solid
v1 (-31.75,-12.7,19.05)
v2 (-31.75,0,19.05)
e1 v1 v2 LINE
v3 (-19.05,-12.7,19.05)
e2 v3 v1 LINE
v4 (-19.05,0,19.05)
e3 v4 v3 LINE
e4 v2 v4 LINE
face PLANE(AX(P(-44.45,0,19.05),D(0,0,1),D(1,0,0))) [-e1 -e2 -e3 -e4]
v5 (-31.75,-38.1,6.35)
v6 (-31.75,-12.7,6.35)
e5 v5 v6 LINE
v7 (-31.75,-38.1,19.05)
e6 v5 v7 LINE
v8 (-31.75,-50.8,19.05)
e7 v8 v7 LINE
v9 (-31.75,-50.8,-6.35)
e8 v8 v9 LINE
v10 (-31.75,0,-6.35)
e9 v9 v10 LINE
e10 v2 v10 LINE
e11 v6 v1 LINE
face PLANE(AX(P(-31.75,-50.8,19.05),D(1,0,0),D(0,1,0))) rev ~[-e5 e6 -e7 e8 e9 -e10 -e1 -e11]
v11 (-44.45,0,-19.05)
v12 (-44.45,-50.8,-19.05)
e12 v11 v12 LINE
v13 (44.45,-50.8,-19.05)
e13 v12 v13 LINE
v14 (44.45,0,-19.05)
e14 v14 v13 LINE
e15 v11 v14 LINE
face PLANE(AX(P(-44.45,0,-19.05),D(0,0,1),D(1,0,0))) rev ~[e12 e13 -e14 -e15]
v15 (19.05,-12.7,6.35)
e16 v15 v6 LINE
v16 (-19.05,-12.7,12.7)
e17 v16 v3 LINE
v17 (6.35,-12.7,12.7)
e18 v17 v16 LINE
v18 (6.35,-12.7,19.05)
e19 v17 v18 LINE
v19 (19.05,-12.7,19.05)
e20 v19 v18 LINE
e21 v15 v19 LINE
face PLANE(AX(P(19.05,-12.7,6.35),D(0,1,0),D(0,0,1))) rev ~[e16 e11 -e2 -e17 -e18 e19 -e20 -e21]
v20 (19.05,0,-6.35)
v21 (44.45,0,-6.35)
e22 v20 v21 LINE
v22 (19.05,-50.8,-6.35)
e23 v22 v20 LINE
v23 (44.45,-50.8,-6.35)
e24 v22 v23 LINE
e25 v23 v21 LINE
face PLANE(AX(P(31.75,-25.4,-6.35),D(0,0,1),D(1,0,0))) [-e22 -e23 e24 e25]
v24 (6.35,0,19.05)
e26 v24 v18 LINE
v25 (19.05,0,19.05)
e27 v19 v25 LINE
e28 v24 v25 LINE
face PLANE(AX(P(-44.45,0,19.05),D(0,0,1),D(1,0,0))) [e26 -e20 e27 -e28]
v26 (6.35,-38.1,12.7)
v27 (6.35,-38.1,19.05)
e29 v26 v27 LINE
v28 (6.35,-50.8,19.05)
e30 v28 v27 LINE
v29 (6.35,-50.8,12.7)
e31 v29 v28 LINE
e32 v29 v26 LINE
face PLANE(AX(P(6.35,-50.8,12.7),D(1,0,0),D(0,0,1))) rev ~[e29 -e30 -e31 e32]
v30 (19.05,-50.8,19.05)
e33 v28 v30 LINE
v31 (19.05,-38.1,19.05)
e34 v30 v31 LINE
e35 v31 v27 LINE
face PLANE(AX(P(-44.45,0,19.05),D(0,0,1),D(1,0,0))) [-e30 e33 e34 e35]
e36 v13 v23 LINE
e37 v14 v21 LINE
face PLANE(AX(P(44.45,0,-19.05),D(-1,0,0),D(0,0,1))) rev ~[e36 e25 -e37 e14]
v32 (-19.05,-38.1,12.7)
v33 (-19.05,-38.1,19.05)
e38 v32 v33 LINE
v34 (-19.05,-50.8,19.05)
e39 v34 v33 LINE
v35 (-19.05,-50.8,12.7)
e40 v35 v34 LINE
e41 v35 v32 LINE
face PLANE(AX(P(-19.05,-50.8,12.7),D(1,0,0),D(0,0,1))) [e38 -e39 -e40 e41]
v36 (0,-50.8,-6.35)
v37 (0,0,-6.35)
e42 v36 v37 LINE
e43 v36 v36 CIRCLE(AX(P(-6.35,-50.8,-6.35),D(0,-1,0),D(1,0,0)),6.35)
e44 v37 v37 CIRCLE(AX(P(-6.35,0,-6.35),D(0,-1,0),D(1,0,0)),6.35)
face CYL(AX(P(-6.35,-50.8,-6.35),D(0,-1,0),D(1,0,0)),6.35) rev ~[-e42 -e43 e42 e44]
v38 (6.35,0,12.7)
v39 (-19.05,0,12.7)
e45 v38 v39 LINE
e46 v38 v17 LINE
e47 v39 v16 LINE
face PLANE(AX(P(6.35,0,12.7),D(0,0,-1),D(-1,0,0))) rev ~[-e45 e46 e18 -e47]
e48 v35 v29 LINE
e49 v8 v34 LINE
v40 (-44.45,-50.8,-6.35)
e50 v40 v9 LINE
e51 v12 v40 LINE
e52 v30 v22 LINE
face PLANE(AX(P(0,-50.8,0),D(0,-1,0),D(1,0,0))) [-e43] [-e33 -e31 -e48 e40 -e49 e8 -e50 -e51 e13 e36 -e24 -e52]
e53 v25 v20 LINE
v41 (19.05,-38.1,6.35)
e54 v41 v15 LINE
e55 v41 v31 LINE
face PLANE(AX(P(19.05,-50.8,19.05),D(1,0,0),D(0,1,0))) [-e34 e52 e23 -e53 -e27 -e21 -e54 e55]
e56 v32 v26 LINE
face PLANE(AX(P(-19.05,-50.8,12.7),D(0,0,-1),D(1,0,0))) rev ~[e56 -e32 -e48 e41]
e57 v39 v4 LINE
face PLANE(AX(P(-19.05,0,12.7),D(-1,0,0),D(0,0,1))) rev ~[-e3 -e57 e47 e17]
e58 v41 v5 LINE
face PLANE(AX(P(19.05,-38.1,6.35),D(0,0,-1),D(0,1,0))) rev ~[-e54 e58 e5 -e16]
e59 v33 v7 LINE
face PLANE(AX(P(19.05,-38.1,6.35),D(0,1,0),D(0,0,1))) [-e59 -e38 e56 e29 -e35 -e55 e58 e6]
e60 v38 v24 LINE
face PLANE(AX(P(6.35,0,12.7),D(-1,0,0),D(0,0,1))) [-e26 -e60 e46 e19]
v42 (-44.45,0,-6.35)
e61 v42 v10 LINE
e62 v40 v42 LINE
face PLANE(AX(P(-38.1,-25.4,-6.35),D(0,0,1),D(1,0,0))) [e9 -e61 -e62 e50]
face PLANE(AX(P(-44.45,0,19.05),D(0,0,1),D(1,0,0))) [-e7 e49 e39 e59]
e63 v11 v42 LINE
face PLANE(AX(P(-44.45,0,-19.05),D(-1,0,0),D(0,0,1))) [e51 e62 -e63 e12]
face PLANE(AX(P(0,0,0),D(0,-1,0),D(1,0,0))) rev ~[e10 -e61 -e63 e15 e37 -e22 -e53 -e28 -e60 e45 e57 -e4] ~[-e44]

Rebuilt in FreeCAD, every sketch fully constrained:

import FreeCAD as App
import Part
import Sketcher
Q = App.Units.Quantity


def add_polygon(sketch, points):
    """Adds a closed chain of lines whose ends are joined by coincident constraints."""
    first, n = sketch.GeometryCount, len(points)
    for a, b in zip(points, points[1:] + points[:1]):
        sketch.addGeometry(Part.LineSegment(App.Vector(*a, 0), App.Vector(*b, 0)), False)
    for i in range(n):
        sketch.addConstraint(Sketcher.Constraint("Coincident", first + i, 2, first + (i + 1) % n, 1))

doc = App.newDocument("Part")
body = doc.addObject("PartDesign::Body", "Body")

sketch1 = body.newObject("Sketcher::SketchObject", "Sketch")
sketch1.AttachmentSupport = (doc.getObject("XZ_Plane"), [""])
sketch1.MapMode = "FlatFace"
add_polygon(sketch1, [(-44, 19), (-44, -19), (44, -19), (44, 19)])
sketch1.addConstraint([
    Sketcher.Constraint("Vertical", 0),
    Sketcher.Constraint("Horizontal", 1),
    Sketcher.Constraint("Vertical", 2),
    Sketcher.Constraint("Horizontal", 3),
    Sketcher.Constraint("Symmetric", 0, 2, 2, 2, -1, 1),
    Sketcher.Constraint("DistanceX", 1, 1, 1, 2, Q("3.5 in")),
    Sketcher.Constraint("DistanceY", 0, 2, 0, 1, Q("1.5 in")),
])
pad1 = body.newObject("PartDesign::Pad", "Pad")
pad1.Profile = sketch1
pad1.Length = Q("2 in")

sketch2 = body.newObject("Sketcher::SketchObject", "Sketch001")
sketch2.AttachmentSupport = (doc.getObject("XY_Plane"), [""])
sketch2.MapMode = "FlatFace"
sketch2.AttachmentOffset = App.Placement(App.Vector(0, 0, 0.75 * 25.4), App.Rotation())
add_polygon(sketch2, [(-44, 0), (-44, -51), (-32, -51), (-32, 0)])
sketch2.addConstraint([
    Sketcher.Constraint("Vertical", 0),
    Sketcher.Constraint("Horizontal", 1),
    Sketcher.Constraint("Vertical", 2),
    Sketcher.Constraint("Horizontal", 3),
    Sketcher.Constraint("PointOnObject", 2, 2, -1),
    Sketcher.Constraint("DistanceY", 0, 2, 0, 1, Q("2 in")),
    Sketcher.Constraint("DistanceX", 1, 1, 1, 2, Q("0.5 in")),
    Sketcher.Constraint("DistanceX", 0, 2, -1, 1, Q("1.75 in")),
])
pocket1 = body.newObject("PartDesign::Pocket", "Pocket")
pocket1.Profile = sketch2
pocket1.Length = Q("1 in")

sketch3 = body.newObject("Sketcher::SketchObject", "Sketch002")
sketch3.AttachmentSupport = (doc.getObject("XY_Plane"), [""])
sketch3.MapMode = "FlatFace"
sketch3.AttachmentOffset = App.Placement(App.Vector(0, 0, 0.75 * 25.4), App.Rotation())
add_polygon(sketch3, [(19, 0), (19, -51), (44, -51), (44, 0)])
sketch3.addConstraint([
    Sketcher.Constraint("Vertical", 0),
    Sketcher.Constraint("Horizontal", 1),
    Sketcher.Constraint("Vertical", 2),
    Sketcher.Constraint("Horizontal", 3),
    Sketcher.Constraint("PointOnObject", 2, 2, -1),
    Sketcher.Constraint("DistanceX", 1, 1, 1, 2, Q("1 in")),
    Sketcher.Constraint("DistanceY", 0, 2, 0, 1, Q("2 in")),
    Sketcher.Constraint("DistanceX", -1, 1, 0, 2, Q("0.75 in")),
])
pocket2 = body.newObject("PartDesign::Pocket", "Pocket001")
pocket2.Profile = sketch3
pocket2.Length = Q("1 in")

sketch4 = body.newObject("Sketcher::SketchObject", "Sketch003")
sketch4.AttachmentSupport = (doc.getObject("XZ_Plane"), [""])
sketch4.MapMode = "FlatFace"
sketch4.AttachmentOffset = App.Placement(App.Vector(0, 0, 2 * 25.4), App.Rotation())
sketch4.addGeometry(Part.Circle(App.Vector(-6, -6, 0), App.Vector(0, 0, 1), 6), False)
sketch4.addConstraint([
    Sketcher.Constraint("Diameter", 0, Q("0.5 in")),
    Sketcher.Constraint("DistanceX", 0, 3, -1, 1, Q("0.25 in")),
    Sketcher.Constraint("DistanceY", 0, 3, -1, 1, Q("0.25 in")),
])
pocket3 = body.newObject("PartDesign::Pocket", "Pocket002")
pocket3.Profile = sketch4
pocket3.Type = "ThroughAll"

sketch5 = body.newObject("Sketcher::SketchObject", "Sketch004")
sketch5.AttachmentSupport = (doc.getObject("YZ_Plane"), [""])
sketch5.MapMode = "FlatFace"
sketch5.AttachmentOffset = App.Placement(App.Vector(0, 0, 0.75 * 25.4), App.Rotation())
add_polygon(sketch5, [(-38, 19), (-38, 6), (-13, 6), (-13, 19)])
sketch5.addConstraint([
    Sketcher.Constraint("Vertical", 0),
    Sketcher.Constraint("Horizontal", 1),
    Sketcher.Constraint("Vertical", 2),
    Sketcher.Constraint("Horizontal", 3),
    Sketcher.Constraint("DistanceX", 1, 1, 1, 2, Q("1 in")),
    Sketcher.Constraint("DistanceY", 0, 2, 0, 1, Q("0.5 in")),
    Sketcher.Constraint("DistanceX", 0, 2, -1, 1, Q("1.5 in")),
    Sketcher.Constraint("DistanceY", -1, 1, 0, 2, Q("0.25 in")),
])
pocket4 = body.newObject("PartDesign::Pocket", "Pocket003")
pocket4.Profile = sketch5
pocket4.Type = "ThroughAll"

sketch6 = body.newObject("Sketcher::SketchObject", "Sketch005")
sketch6.AttachmentSupport = (doc.getObject("XZ_Plane"), [""])
sketch6.MapMode = "FlatFace"
sketch6.AttachmentOffset = App.Placement(App.Vector(0, 0, 2 * 25.4), App.Rotation())
add_polygon(sketch6, [(-19, 19), (-19, 13), (6, 13), (6, 19)])
sketch6.addConstraint([
    Sketcher.Constraint("Vertical", 0),
    Sketcher.Constraint("Horizontal", 1),
    Sketcher.Constraint("Vertical", 2),
    Sketcher.Constraint("Horizontal", 3),
    Sketcher.Constraint("DistanceX", 1, 1, 1, 2, Q("1 in")),
    Sketcher.Constraint("DistanceY", 0, 2, 0, 1, Q("0.25 in")),
    Sketcher.Constraint("DistanceY", -1, 1, 0, 2, Q("0.5 in")),
    Sketcher.Constraint("DistanceX", 0, 2, -1, 1, Q("0.75 in")),
])
pocket5 = body.newObject("PartDesign::Pocket", "Pocket004")
pocket5.Profile = sketch6
pocket5.Length = Q("0.5 in")

sketch7 = body.newObject("Sketcher::SketchObject", "Sketch006")
sketch7.AttachmentSupport = (doc.getObject("XZ_Plane"), [""])
sketch7.MapMode = "FlatFace"
add_polygon(sketch7, [(6, 19), (6, 13), (-19, 13), (-19, 19)])
sketch7.addConstraint([
    Sketcher.Constraint("Vertical", 0),
    Sketcher.Constraint("Horizontal", 1),
    Sketcher.Constraint("Vertical", 2),
    Sketcher.Constraint("Horizontal", 3),
    Sketcher.Constraint("DistanceX", 1, 2, 1, 1, Q("1 in")),
    Sketcher.Constraint("DistanceY", 0, 2, 0, 1, Q("0.25 in")),
    Sketcher.Constraint("DistanceY", -1, 1, 0, 2, Q("0.5 in")),
    Sketcher.Constraint("DistanceX", -1, 1, 0, 2, Q("0.25 in")),
])
pocket6 = body.newObject("PartDesign::Pocket", "Pocket005")
pocket6.Profile = sketch7
pocket6.Length = Q("0.5 in")
pocket6.Reversed = True

doc.recompute()
